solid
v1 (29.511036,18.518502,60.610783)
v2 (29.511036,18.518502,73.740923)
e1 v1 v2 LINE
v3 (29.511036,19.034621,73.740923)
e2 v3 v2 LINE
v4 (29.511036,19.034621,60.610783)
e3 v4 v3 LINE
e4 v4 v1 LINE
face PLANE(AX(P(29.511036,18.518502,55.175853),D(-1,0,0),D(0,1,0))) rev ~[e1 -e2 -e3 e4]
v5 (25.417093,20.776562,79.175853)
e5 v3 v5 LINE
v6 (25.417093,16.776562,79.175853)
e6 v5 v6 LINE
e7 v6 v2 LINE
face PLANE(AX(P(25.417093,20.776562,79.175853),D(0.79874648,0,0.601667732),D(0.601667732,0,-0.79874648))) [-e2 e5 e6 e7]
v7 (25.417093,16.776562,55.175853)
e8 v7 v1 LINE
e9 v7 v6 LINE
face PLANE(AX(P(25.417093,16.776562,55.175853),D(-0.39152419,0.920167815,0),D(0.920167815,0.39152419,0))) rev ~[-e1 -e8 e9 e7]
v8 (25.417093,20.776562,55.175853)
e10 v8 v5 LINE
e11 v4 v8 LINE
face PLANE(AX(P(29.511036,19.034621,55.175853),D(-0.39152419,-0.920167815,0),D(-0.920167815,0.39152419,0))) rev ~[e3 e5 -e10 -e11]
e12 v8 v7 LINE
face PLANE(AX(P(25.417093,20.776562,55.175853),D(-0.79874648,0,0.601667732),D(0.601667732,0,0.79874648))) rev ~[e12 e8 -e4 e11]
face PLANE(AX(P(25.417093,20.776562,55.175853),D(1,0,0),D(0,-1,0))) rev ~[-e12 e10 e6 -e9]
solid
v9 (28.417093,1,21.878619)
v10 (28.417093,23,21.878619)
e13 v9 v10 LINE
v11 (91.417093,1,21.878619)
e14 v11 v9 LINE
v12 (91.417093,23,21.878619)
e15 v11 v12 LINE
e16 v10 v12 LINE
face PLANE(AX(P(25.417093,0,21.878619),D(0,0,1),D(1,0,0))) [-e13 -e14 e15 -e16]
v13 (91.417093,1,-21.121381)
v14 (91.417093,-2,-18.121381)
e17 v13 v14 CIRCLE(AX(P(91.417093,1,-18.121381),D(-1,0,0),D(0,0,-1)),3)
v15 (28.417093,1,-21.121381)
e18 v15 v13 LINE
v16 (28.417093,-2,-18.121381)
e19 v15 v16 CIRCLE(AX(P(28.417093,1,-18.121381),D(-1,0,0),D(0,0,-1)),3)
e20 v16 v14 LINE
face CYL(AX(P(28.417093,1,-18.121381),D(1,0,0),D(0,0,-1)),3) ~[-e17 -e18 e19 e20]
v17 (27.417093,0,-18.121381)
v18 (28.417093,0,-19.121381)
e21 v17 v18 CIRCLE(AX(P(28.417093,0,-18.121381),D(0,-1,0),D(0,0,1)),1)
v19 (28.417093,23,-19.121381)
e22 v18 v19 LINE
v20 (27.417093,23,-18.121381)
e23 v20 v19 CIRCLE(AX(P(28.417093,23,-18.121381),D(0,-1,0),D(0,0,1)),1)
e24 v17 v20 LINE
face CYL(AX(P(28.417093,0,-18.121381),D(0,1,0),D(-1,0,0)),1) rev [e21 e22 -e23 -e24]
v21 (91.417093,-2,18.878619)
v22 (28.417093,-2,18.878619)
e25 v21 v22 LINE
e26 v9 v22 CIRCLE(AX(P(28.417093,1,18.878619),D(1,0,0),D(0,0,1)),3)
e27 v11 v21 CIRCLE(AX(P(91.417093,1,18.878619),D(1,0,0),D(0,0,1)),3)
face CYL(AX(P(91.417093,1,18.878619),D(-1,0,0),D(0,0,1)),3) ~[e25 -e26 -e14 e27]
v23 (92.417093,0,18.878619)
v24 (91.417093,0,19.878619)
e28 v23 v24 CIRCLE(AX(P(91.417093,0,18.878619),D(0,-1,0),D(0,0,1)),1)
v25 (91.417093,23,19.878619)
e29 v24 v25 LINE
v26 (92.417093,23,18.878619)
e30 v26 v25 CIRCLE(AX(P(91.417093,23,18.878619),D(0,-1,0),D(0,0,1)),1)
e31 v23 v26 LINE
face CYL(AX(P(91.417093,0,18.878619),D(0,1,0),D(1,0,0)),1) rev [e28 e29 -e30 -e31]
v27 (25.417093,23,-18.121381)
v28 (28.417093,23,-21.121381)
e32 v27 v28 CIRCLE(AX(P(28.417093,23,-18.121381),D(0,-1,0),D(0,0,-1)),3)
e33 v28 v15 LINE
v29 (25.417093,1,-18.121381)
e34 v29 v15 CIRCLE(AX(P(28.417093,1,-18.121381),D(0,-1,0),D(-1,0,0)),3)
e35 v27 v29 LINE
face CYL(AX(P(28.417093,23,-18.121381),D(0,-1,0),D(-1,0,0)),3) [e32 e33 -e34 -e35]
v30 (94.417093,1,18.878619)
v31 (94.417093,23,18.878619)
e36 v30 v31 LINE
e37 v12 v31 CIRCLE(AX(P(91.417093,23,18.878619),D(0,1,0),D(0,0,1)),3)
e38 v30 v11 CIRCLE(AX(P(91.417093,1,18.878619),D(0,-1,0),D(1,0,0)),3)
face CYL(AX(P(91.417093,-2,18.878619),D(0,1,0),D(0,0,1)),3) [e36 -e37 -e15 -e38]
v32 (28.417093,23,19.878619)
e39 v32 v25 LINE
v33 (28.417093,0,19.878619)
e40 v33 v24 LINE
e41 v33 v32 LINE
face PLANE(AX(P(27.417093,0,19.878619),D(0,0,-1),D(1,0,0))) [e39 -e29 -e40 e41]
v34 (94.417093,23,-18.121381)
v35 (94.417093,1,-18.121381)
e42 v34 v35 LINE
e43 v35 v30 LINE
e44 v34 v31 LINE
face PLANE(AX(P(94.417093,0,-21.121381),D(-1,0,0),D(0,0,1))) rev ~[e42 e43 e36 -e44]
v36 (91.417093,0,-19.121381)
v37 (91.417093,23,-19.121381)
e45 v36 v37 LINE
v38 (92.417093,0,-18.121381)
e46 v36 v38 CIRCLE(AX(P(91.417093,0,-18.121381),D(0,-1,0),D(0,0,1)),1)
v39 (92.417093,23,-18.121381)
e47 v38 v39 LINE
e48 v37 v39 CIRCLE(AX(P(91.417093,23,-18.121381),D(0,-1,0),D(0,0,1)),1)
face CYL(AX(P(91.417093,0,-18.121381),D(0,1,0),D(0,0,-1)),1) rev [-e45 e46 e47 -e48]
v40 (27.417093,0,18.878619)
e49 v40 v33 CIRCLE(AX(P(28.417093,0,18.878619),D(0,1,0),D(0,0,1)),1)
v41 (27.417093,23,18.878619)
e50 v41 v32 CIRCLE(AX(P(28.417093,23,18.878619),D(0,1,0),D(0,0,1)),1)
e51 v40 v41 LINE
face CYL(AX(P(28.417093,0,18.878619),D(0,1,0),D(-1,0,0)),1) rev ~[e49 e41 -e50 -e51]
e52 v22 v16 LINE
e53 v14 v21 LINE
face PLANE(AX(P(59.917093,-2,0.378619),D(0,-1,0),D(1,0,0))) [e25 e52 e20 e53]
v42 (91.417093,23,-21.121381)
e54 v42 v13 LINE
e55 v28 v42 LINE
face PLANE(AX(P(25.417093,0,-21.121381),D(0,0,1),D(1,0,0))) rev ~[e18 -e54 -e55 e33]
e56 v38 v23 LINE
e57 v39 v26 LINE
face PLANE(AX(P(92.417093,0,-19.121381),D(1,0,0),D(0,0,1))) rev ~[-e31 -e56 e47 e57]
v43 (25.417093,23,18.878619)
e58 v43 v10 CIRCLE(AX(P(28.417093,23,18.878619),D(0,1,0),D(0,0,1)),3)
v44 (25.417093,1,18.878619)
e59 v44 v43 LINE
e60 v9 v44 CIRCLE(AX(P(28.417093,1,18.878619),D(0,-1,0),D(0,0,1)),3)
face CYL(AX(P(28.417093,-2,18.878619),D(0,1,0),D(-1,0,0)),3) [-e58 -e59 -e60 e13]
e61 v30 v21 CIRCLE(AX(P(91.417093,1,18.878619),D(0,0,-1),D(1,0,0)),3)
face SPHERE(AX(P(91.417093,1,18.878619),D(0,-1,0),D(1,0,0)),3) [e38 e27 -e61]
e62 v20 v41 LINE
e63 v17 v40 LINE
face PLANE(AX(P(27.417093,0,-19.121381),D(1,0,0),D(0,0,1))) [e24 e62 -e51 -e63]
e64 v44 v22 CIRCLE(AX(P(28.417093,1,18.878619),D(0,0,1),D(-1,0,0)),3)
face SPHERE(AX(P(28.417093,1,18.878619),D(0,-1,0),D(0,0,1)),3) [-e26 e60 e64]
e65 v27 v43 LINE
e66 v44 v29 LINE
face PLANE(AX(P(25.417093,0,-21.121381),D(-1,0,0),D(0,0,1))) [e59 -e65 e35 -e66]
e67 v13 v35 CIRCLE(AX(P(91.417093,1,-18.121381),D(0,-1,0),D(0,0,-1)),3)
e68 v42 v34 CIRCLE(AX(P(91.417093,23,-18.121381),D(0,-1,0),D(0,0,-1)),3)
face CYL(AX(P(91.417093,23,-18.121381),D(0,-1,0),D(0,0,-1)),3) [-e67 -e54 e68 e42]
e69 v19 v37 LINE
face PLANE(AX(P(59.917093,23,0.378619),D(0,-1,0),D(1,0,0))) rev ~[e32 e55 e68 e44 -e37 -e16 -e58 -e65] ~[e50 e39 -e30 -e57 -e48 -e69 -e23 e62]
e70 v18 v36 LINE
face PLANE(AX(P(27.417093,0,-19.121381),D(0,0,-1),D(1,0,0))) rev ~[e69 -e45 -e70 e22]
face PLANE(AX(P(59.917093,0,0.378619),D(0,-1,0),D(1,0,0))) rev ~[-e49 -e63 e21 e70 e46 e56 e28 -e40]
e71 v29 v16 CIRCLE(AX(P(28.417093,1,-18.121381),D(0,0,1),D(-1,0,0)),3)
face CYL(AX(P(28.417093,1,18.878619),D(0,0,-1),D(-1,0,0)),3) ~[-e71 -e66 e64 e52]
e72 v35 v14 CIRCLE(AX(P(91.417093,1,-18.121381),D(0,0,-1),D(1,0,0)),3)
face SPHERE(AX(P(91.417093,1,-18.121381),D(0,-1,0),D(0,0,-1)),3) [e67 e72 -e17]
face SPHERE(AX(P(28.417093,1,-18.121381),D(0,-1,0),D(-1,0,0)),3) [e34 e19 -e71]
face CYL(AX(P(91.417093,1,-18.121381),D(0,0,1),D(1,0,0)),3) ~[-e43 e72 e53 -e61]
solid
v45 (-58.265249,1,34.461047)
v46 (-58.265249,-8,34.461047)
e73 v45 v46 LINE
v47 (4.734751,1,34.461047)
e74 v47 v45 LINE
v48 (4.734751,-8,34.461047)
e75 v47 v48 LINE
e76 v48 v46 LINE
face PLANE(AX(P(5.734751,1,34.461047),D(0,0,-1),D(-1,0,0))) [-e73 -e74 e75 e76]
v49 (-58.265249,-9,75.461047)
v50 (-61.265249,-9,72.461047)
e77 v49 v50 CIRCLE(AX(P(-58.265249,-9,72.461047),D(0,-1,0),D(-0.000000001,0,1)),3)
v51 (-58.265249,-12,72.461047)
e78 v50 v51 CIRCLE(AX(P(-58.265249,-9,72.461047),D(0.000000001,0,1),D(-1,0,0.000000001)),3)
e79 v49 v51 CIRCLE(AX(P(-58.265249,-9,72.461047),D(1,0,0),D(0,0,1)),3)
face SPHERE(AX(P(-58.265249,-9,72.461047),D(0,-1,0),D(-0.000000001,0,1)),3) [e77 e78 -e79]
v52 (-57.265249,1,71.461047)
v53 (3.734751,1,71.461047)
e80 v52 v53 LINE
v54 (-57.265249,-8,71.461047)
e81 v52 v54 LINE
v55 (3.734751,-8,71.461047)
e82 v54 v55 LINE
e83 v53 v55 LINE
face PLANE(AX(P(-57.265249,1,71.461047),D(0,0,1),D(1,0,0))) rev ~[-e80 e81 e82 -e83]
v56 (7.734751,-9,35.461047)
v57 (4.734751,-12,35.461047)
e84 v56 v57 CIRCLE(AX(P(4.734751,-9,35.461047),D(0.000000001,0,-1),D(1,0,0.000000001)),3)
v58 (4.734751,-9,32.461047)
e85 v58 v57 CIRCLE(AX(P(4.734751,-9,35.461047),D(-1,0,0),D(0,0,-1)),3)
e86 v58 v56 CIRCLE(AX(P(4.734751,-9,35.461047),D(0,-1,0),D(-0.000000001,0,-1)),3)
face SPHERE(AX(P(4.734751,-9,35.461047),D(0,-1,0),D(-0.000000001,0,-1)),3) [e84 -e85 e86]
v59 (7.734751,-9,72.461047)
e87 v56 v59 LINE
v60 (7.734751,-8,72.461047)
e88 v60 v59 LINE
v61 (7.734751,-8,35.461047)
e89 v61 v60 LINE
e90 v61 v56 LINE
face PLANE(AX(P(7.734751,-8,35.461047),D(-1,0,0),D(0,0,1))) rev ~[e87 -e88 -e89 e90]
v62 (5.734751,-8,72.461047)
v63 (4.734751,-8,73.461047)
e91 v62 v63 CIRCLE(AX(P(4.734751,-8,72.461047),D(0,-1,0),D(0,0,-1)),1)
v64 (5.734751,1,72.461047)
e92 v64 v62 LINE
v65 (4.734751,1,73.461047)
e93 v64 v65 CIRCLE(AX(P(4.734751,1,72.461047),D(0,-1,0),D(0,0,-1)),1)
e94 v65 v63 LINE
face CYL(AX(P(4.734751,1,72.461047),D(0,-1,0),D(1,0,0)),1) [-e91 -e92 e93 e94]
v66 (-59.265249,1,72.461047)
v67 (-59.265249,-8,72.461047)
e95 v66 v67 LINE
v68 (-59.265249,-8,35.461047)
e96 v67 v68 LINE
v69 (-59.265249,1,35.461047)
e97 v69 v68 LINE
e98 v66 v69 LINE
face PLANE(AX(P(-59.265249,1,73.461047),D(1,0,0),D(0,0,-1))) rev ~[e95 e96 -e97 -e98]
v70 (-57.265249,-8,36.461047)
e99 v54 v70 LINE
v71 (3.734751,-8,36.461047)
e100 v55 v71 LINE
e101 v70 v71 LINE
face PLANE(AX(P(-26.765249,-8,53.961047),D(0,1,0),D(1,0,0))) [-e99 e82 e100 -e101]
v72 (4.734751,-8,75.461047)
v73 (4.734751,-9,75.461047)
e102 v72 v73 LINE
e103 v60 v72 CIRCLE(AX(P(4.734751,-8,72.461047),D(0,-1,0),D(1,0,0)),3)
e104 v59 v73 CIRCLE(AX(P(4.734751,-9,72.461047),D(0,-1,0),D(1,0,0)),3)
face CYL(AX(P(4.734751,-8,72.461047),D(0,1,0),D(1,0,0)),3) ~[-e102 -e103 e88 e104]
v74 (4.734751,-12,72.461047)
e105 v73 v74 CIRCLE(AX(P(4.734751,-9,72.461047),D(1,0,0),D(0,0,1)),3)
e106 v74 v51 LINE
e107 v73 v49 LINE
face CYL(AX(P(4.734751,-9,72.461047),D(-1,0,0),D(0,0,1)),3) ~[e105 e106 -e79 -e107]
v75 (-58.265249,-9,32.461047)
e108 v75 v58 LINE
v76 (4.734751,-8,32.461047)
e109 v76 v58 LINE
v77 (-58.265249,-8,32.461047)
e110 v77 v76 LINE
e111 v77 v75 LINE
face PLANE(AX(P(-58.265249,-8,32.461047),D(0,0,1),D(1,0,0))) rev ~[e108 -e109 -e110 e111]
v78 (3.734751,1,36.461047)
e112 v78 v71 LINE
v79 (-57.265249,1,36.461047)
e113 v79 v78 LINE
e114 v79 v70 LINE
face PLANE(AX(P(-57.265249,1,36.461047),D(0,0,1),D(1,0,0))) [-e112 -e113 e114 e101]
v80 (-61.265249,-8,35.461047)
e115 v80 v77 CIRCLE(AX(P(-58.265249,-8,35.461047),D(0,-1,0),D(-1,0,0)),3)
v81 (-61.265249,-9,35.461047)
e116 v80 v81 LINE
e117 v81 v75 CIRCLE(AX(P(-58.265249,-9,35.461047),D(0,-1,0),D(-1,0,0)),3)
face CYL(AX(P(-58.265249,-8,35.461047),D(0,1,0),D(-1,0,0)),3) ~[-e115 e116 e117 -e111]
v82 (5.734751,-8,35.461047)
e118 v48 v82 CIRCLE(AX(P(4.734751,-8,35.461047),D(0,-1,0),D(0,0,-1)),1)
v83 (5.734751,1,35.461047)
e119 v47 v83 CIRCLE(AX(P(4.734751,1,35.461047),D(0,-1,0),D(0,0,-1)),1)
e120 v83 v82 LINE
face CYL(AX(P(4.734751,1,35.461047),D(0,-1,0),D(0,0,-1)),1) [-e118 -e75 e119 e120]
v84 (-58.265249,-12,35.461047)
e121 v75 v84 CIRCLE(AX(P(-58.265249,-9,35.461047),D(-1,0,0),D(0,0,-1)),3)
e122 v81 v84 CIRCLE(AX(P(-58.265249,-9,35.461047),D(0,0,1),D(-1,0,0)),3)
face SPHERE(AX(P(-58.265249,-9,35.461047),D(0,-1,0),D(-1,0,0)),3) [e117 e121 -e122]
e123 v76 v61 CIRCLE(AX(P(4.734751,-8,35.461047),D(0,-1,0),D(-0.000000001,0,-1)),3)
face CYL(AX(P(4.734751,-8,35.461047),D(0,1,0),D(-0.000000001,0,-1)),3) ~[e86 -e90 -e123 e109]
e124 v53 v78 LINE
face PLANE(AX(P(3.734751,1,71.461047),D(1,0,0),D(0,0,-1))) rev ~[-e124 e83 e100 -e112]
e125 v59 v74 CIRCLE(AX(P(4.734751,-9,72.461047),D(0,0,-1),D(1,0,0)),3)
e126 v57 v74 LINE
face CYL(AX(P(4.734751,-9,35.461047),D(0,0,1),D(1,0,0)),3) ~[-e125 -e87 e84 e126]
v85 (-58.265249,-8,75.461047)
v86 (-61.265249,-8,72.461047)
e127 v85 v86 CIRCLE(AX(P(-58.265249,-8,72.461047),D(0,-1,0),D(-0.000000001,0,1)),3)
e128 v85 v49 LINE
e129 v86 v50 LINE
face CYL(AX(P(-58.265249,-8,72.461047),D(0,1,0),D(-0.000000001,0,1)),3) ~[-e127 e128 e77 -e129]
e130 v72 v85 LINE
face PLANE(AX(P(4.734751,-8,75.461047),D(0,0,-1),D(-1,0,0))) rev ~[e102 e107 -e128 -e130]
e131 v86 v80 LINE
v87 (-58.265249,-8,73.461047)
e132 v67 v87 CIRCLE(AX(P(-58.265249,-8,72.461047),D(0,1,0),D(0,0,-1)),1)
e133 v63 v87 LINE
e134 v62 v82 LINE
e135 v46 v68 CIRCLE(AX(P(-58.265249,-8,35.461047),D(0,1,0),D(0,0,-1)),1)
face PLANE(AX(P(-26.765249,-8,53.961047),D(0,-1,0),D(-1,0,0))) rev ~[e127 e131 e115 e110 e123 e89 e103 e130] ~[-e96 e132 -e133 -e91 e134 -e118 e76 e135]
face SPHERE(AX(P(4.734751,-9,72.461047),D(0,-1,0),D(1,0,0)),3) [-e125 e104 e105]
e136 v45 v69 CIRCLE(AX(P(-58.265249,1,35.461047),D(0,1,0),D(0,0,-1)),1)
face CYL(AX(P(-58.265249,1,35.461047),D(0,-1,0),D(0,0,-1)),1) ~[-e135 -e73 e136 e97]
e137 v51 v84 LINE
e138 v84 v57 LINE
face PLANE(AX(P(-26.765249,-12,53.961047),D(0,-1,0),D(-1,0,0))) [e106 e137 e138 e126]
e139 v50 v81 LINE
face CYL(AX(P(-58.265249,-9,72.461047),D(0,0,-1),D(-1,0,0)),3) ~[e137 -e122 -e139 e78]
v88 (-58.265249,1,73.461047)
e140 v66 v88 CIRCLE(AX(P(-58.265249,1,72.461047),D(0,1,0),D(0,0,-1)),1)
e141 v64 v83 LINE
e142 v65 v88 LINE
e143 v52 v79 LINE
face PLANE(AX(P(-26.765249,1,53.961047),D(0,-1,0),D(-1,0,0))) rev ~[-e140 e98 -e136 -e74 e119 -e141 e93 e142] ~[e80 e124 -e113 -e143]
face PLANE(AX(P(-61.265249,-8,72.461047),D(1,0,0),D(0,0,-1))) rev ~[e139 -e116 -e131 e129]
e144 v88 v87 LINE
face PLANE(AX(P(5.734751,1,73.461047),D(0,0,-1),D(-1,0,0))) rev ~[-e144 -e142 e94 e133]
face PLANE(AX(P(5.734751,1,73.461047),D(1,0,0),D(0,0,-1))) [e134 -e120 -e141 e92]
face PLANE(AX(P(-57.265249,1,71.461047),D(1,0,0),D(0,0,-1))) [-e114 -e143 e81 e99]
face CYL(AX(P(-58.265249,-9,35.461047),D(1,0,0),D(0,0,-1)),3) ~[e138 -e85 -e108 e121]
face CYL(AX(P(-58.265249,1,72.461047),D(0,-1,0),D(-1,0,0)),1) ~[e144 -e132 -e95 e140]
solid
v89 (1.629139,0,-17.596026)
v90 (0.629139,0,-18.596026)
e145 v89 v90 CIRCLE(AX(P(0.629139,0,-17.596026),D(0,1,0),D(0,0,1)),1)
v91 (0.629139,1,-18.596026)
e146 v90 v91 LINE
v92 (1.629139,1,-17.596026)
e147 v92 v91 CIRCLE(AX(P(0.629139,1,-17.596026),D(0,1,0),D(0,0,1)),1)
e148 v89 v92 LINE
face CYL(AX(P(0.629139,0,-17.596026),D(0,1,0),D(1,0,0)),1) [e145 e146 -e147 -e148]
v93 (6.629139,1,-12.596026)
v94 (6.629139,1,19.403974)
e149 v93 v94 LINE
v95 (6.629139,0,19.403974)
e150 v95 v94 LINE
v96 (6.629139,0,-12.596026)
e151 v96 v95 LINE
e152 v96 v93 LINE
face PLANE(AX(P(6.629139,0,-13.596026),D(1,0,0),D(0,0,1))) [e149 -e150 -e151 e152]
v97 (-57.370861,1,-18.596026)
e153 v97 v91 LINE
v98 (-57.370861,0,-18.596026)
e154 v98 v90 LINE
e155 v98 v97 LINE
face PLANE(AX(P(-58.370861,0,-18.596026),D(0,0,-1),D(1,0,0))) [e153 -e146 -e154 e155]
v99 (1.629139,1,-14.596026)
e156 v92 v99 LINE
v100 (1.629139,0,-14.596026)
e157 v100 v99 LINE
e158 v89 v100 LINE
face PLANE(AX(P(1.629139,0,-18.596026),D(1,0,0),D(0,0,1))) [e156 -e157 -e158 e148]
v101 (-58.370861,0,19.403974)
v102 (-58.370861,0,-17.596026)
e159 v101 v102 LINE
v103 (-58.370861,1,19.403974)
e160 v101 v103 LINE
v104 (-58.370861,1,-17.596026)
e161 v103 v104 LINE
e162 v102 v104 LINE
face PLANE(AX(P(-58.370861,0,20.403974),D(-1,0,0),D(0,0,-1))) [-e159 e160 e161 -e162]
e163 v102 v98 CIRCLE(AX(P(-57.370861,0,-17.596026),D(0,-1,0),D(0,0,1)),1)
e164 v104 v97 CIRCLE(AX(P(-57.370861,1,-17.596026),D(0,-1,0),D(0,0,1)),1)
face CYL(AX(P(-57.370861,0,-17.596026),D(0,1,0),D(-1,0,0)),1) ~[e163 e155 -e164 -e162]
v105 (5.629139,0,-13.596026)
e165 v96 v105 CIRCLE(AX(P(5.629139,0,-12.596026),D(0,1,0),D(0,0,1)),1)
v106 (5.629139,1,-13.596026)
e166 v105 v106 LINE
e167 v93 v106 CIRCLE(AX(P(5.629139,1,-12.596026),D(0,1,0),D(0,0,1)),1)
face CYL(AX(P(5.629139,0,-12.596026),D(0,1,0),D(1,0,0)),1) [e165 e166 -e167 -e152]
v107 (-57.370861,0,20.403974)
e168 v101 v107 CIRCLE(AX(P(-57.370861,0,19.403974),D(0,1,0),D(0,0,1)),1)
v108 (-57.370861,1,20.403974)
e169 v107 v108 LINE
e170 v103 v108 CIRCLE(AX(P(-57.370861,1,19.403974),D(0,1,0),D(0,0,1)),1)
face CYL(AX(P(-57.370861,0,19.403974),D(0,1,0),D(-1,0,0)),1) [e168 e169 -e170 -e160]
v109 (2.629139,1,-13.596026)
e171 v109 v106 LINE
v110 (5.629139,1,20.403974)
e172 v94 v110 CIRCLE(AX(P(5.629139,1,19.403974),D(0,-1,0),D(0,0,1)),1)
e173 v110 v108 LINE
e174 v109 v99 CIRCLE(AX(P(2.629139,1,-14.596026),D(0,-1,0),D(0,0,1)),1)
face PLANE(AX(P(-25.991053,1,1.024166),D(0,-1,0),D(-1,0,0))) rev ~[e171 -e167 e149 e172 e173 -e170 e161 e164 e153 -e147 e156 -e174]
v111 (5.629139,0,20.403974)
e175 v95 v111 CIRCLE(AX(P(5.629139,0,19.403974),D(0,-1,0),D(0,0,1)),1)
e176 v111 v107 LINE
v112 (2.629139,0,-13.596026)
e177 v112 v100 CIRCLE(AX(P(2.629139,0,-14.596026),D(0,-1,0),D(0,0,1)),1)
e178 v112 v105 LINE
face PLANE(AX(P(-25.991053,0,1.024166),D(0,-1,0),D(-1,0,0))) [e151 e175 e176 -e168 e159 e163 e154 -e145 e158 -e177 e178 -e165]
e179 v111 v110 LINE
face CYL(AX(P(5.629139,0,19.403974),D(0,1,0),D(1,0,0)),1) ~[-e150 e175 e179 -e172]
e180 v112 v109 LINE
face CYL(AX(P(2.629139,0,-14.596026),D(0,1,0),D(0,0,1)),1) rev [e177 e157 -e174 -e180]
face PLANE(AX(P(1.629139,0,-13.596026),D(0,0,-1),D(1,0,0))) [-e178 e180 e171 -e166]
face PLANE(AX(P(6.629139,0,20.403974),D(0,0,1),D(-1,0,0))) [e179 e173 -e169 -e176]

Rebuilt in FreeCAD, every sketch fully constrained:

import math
import FreeCAD as App
import Part
import Sketcher
Q = App.Units.Quantity


def edges_at(feature, points):
    """Names of the edges that pass closest to the given points."""
    edges = feature.Shape.Edges
    near = lambda p: min(range(len(edges)), key=lambda i: edges[i].distToShape(Part.Vertex(*p))[0])
    return sorted({f"Edge{near(p) + 1}" for p in points})

doc = App.newDocument("Part")
params = doc.addObject("Spreadsheet::Sheet", "Params")
for row, (alias, value) in enumerate([
    ("sketch1_width", "65 mm"),
    ("sketch1_width2", "5 mm"),
    ("sketch1_height", "39 mm"),
    ("pad1_length", "1 mm"),
    ("fillet_radius", "1 mm"),
    ("fillet2_radius", "1 mm"),
    ("fillet3_radius", "1 mm"),
    ("fillet4_radius", "1 mm"),
    ("sketch2_width", "69 mm"),
    ("sketch2_width2", "65 mm"),
    ("sketch2_height", "43 mm"),
    ("sketch2_height2", "39 mm"),
    ("pad2_length", "23 mm"),
    ("sketch3_width", "69 mm"),
    ("sketch3_height", "43 mm"),
    ("pad3_length", "2 mm"),
    ("fillet5_radius", "1 mm"),
    ("fillet6_radius", "1 mm"),
    ("fillet7_radius", "1 mm"),
    ("fillet8_radius", "1 mm"),
    ("fillet9_radius", "3 mm"),
    ("fillet10_radius", "3 mm"),
    ("fillet11_radius", "3 mm"),
    ("sketch4_width", "65 mm"),
    ("sketch4_height", "39 mm"),
    ("pad4_length", "9 mm"),
    ("fillet12_radius", "1 mm"),
    ("fillet13_radius", "1 mm"),
    ("sketch5_radius", "3 mm"),
    ("sketch5_width", "63 mm"),
    ("sketch5_height", "37 mm"),
    ("pad5_length", "4 mm"),
    ("sketch6_width", "61 mm"),
    ("sketch6_height", "35 mm"),
    ("pad6_length", "9 mm"),
    ("fillet14_radius", "3 mm"),
    ("sketch7_height", "4 mm"),
    ("pad7_length", "24 mm"),
    ("pad8_length", "4 mm"),
    ("pad9_length", "4 mm"),
], start=1):
    params.set(f"A{row}", alias)
    params.set(f"B{row}", "=" + value)
    params.setAlias(f"B{row}", alias)

body = doc.addObject("PartDesign::Body", "Body")

sketch1 = doc.addObject("Sketcher::SketchObject", "Sketch")
body.addObject(sketch1)
sketch1.AttachmentSupport = (doc.XZ_Plane, [""])
sketch1.MapMode = "FlatFace"
sketch1.addGeometry([
    Part.LineSegment(App.Vector(-58, -19, 0), App.Vector(-58, 20, 0)),
    Part.LineSegment(App.Vector(-58, 20, 0), App.Vector(7, 20, 0)),
    Part.LineSegment(App.Vector(7, 20, 0), App.Vector(7, -14, 0)),
    Part.LineSegment(App.Vector(7, -14, 0), App.Vector(2, -14, 0)),
    Part.LineSegment(App.Vector(2, -14, 0), App.Vector(2, -19, 0)),
    Part.LineSegment(App.Vector(2, -19, 0), App.Vector(-58, -19, 0)),
], False)
sketch1.addConstraint([
    Sketcher.Constraint("Coincident", 0, 2, 1, 1),
    Sketcher.Constraint("Coincident", 1, 2, 2, 1),
    Sketcher.Constraint("Coincident", 2, 2, 3, 1),
    Sketcher.Constraint("Coincident", 3, 2, 4, 1),
    Sketcher.Constraint("Coincident", 4, 2, 5, 1),
    Sketcher.Constraint("Coincident", 5, 2, 0, 1),
    Sketcher.Constraint("Vertical", 0),
    Sketcher.Constraint("Horizontal", 1),
    Sketcher.Constraint("Vertical", 2),
    Sketcher.Constraint("Horizontal", 3),
    Sketcher.Constraint("Vertical", 4),
    Sketcher.Constraint("Horizontal", 5),
    Sketcher.Constraint("Equal", 3, 4),
    Sketcher.Constraint("DistanceX", 1, 1, 1, 2, Q("65 mm")),
    Sketcher.Constraint("DistanceX", 3, 2, 3, 1, Q("5 mm")),
    Sketcher.Constraint("DistanceY", 0, 1, 0, 2, Q("39 mm")),
    Sketcher.Constraint("DistanceX", 0, 2, -1, 1, Q("58.370861 mm")),
    Sketcher.Constraint("DistanceY", -1, 1, 0, 2, Q("20.403974 mm")),
])
sketch1.setExpression("Constraints[13]", "Params.sketch1_width")
sketch1.setExpression("Constraints[14]", "Params.sketch1_width2")
sketch1.setExpression("Constraints[15]", "Params.sketch1_height")
pad1 = doc.addObject("PartDesign::Pad", "Pad")
body.addObject(pad1)
pad1.Profile = sketch1
pad1.setExpression("Length", "Params.pad1_length")
pad1.Reversed = True
doc.recompute()

fillet = doc.addObject("PartDesign::Fillet", "Fillet")
body.addObject(fillet)
fillet.Base = (pad1, edges_at(pad1, [(6.629, 0.5, 20.404)]))
fillet.setExpression("Radius", "Params.fillet_radius")
doc.recompute()

fillet2 = doc.addObject("PartDesign::Fillet", "Fillet001")
body.addObject(fillet2)
fillet2.Base = (fillet, edges_at(fillet, [(1.629, 0.5, -18.596), (1.629, 0.5, -13.596), (6.629, 0.5, -13.596)]))
fillet2.setExpression("Radius", "Params.fillet2_radius")
doc.recompute()

fillet3 = doc.addObject("PartDesign::Fillet", "Fillet002")
body.addObject(fillet3)
fillet3.Base = (fillet2, edges_at(fillet2, [(-58.371, 0.5, -18.596)]))
fillet3.setExpression("Radius", "Params.fillet3_radius")
doc.recompute()

fillet4 = doc.addObject("PartDesign::Fillet", "Fillet003")
body.addObject(fillet4)
fillet4.Base = (fillet3, edges_at(fillet3, [(-58.371, 0.5, 20.404)]))
fillet4.setExpression("Radius", "Params.fillet4_radius")
body2 = doc.addObject("PartDesign::Body", "Body001")

sketch2 = doc.addObject("Sketcher::SketchObject", "Sketch001")
body2.addObject(sketch2)
sketch2.AttachmentSupport = (doc.getObject("XZ_Plane001"), [""])
sketch2.MapMode = "FlatFace"
sketch2.addGeometry([
    Part.LineSegment(App.Vector(25, 22, 0), App.Vector(25, -21, 0)),
    Part.LineSegment(App.Vector(25, -21, 0), App.Vector(94, -21, 0)),
    Part.LineSegment(App.Vector(94, -21, 0), App.Vector(94, 22, 0)),
    Part.LineSegment(App.Vector(94, 22, 0), App.Vector(25, 22, 0)),
    Part.LineSegment(App.Vector(92, -19, 0), App.Vector(27, -19, 0)),
    Part.LineSegment(App.Vector(27, -19, 0), App.Vector(27, 20, 0)),
    Part.LineSegment(App.Vector(27, 20, 0), App.Vector(92, 20, 0)),
    Part.LineSegment(App.Vector(92, 20, 0), App.Vector(92, -19, 0)),
], False)
sketch2.addConstraint([
    Sketcher.Constraint("Coincident", 0, 2, 1, 1),
    Sketcher.Constraint("Coincident", 1, 2, 2, 1),
    Sketcher.Constraint("Coincident", 2, 2, 3, 1),
    Sketcher.Constraint("Coincident", 3, 2, 0, 1),
    Sketcher.Constraint("Coincident", 4, 2, 5, 1),
    Sketcher.Constraint("Coincident", 5, 2, 6, 1),
    Sketcher.Constraint("Coincident", 6, 2, 7, 1),
    Sketcher.Constraint("Coincident", 7, 2, 4, 1),
    Sketcher.Constraint("Vertical", 0),
    Sketcher.Constraint("Horizontal", 1),
    Sketcher.Constraint("Vertical", 2),
    Sketcher.Constraint("Horizontal", 3),
    Sketcher.Constraint("Horizontal", 4),
    Sketcher.Constraint("Vertical", 5),
    Sketcher.Constraint("Horizontal", 6),
    Sketcher.Constraint("Vertical", 7),
    Sketcher.Constraint("DistanceX", 1, 1, 1, 2, Q("69 mm")),
    Sketcher.Constraint("DistanceX", 4, 2, 4, 1, Q("65 mm")),
    Sketcher.Constraint("DistanceY", 0, 2, 0, 1, Q("43 mm")),
    Sketcher.Constraint("DistanceY", 5, 1, 5, 2, Q("39 mm")),
    Sketcher.Constraint("DistanceX", 0, 2, 4, 2, Q("2 mm")),
    Sketcher.Constraint("DistanceY", 0, 2, 4, 2, Q("2 mm")),
    Sketcher.Constraint("DistanceY", 0, 2, -1, 1, Q("21.121381 mm")),
    Sketcher.Constraint("DistanceX", -1, 1, 0, 2, Q("25.417093 mm")),
])
sketch2.setExpression("Constraints[16]", "Params.sketch2_width")
sketch2.setExpression("Constraints[17]", "Params.sketch2_width2")
sketch2.setExpression("Constraints[18]", "Params.sketch2_height")
sketch2.setExpression("Constraints[19]", "Params.sketch2_height2")
pad2 = doc.addObject("PartDesign::Pad", "Pad001")
body2.addObject(pad2)
pad2.Profile = sketch2
pad2.setExpression("Length", "Params.pad2_length")
pad2.Reversed = True

sketch3 = doc.addObject("Sketcher::SketchObject", "Sketch002")
body2.addObject(sketch3)
sketch3.AttachmentSupport = (doc.getObject("XZ_Plane001"), [""])
sketch3.MapMode = "FlatFace"
sketch3.addGeometry([
    Part.LineSegment(App.Vector(25, 22, 0), App.Vector(25, -21, 0)),
    Part.LineSegment(App.Vector(25, -21, 0), App.Vector(94, -21, 0)),
    Part.LineSegment(App.Vector(94, -21, 0), App.Vector(94, 22, 0)),
    Part.LineSegment(App.Vector(94, 22, 0), App.Vector(25, 22, 0)),
], False)
sketch3.addConstraint([
    Sketcher.Constraint("Coincident", 0, 2, 1, 1),
    Sketcher.Constraint("Coincident", 1, 2, 2, 1),
    Sketcher.Constraint("Coincident", 2, 2, 3, 1),
    Sketcher.Constraint("Coincident", 3, 2, 0, 1),
    Sketcher.Constraint("Vertical", 0),
    Sketcher.Constraint("Horizontal", 1),
    Sketcher.Constraint("Vertical", 2),
    Sketcher.Constraint("Horizontal", 3),
    Sketcher.Constraint("DistanceX", 1, 1, 1, 2, Q("69 mm")),
    Sketcher.Constraint("DistanceY", 0, 2, 0, 1, Q("43 mm")),
    Sketcher.Constraint("DistanceY", 0, 2, -1, 1, Q("21.121381 mm")),
    Sketcher.Constraint("DistanceX", -1, 1, 0, 2, Q("25.417093 mm")),
])
sketch3.setExpression("Constraints[8]", "Params.sketch3_width")
sketch3.setExpression("Constraints[9]", "Params.sketch3_height")
pad3 = doc.addObject("PartDesign::Pad", "Pad002")
body2.addObject(pad3)
pad3.Profile = sketch3
pad3.setExpression("Length", "Params.pad3_length")
doc.recompute()

fillet5 = doc.addObject("PartDesign::Fillet", "Fillet004")
body2.addObject(fillet5)
fillet5.Base = (pad3, edges_at(pad3, [(27.417, 11.5, 19.879)]))
fillet5.setExpression("Radius", "Params.fillet5_radius")
doc.recompute()

fillet6 = doc.addObject("PartDesign::Fillet", "Fillet005")
body2.addObject(fillet6)
fillet6.Base = (fillet5, edges_at(fillet5, [(27.417, 11.5, -19.121)]))
fillet6.setExpression("Radius", "Params.fillet6_radius")
doc.recompute()

fillet7 = doc.addObject("PartDesign::Fillet", "Fillet006")
body2.addObject(fillet7)
fillet7.Base = (fillet6, edges_at(fillet6, [(92.417, 11.5, -19.121)]))
fillet7.setExpression("Radius", "Params.fillet7_radius")
doc.recompute()

fillet8 = doc.addObject("PartDesign::Fillet", "Fillet007")
body2.addObject(fillet8)
fillet8.Base = (fillet7, edges_at(fillet7, [(92.417, 11.5, 19.879)]))
fillet8.setExpression("Radius", "Params.fillet8_radius")
doc.recompute()

fillet9 = doc.addObject("PartDesign::Fillet", "Fillet008")
body2.addObject(fillet9)
fillet9.Base = (fillet8, edges_at(fillet8, [(94.417, 10.5, -21.121), (25.417, 10.5, -21.121), (94.417, 10.5, 21.879)]))
fillet9.setExpression("Radius", "Params.fillet9_radius")
doc.recompute()

fillet10 = doc.addObject("PartDesign::Fillet", "Fillet009")
body2.addObject(fillet10)
fillet10.Base = (fillet9, edges_at(fillet9, [(25.417, 10.5, 21.879)]))
fillet10.setExpression("Radius", "Params.fillet10_radius")
doc.recompute()

fillet11 = doc.addObject("PartDesign::Fillet", "Fillet010")
body2.addObject(fillet11)
fillet11.Base = (fillet10, edges_at(fillet10, [
    (94.417, -2, 0.379),
    (59.917, -2, -21.121),
    (59.917, -2, 21.879),
    (93.538, -2, -20.243),
    (26.296, -2, -20.243),
    (93.538, -2, 21),
    (25.417, -2, 0.379),
    (26.296, -2, 21),
]))
fillet11.setExpression("Radius", "Params.fillet11_radius")
body3 = doc.addObject("PartDesign::Body", "Body002")

sketch4 = doc.addObject("Sketcher::SketchObject", "Sketch003")
body3.addObject(sketch4)
sketch4.AttachmentSupport = (doc.getObject("XZ_Plane002"), [""])
sketch4.MapMode = "FlatFace"
sketch4.AttachmentOffset = App.Placement(App.Vector(0, 0, -1), App.Rotation())
sketch4.addGeometry([
    Part.LineSegment(App.Vector(-59, 34, 0), App.Vector(-59, 73, 0)),
    Part.LineSegment(App.Vector(-59, 73, 0), App.Vector(6, 73, 0)),
    Part.LineSegment(App.Vector(6, 73, 0), App.Vector(6, 34, 0)),
    Part.LineSegment(App.Vector(6, 34, 0), App.Vector(-59, 34, 0)),
], False)
sketch4.addConstraint([
    Sketcher.Constraint("Coincident", 0, 2, 1, 1),
    Sketcher.Constraint("Coincident", 1, 2, 2, 1),
    Sketcher.Constraint("Coincident", 2, 2, 3, 1),
    Sketcher.Constraint("Coincident", 3, 2, 0, 1),
    Sketcher.Constraint("Vertical", 0),
    Sketcher.Constraint("Horizontal", 1),
    Sketcher.Constraint("Vertical", 2),
    Sketcher.Constraint("Horizontal", 3),
    Sketcher.Constraint("DistanceX", 1, 1, 1, 2, Q("65 mm")),
    Sketcher.Constraint("DistanceY", 0, 1, 0, 2, Q("39 mm")),
    Sketcher.Constraint("DistanceX", 0, 2, -1, 1, Q("59.265249 mm")),
    Sketcher.Constraint("DistanceY", -1, 1, 0, 2, Q("73.461047 mm")),
])
sketch4.setExpression("Constraints[8]", "Params.sketch4_width")
sketch4.setExpression("Constraints[9]", "Params.sketch4_height")
pad4 = doc.addObject("PartDesign::Pad", "Pad003")
body3.addObject(pad4)
pad4.Profile = sketch4
pad4.setExpression("Length", "Params.pad4_length")
doc.recompute()

fillet12 = doc.addObject("PartDesign::Fillet", "Fillet011")
body3.addObject(fillet12)
fillet12.Base = (pad4, edges_at(pad4, [(5.735, -3.5, 34.461), (5.735, -3.5, 73.461)]))
fillet12.setExpression("Radius", "Params.fillet12_radius")
doc.recompute()

fillet13 = doc.addObject("PartDesign::Fillet", "Fillet012")
body3.addObject(fillet13)
fillet13.Base = (fillet12, edges_at(fillet12, [(-59.265, -3.5, 73.461), (-59.265, -3.5, 34.461)]))
fillet13.setExpression("Radius", "Params.fillet13_radius")

sketch5 = doc.addObject("Sketcher::SketchObject", "Sketch004")
body3.addObject(sketch5)
sketch5.AttachmentSupport = (doc.getObject("XZ_Plane002"), [""])
sketch5.MapMode = "FlatFace"
sketch5.AttachmentOffset = App.Placement(App.Vector(0, 0, 8), App.Rotation())
sketch5.addGeometry([
    Part.LineSegment(App.Vector(-58.3, 32.5, 0), App.Vector(4.7, 32.5, 0)),
    Part.ArcOfCircle(Part.Circle(App.Vector(4.7, 35.5, 0), App.Vector(0, 0, 1), 3), math.radians(-90), math.radians(0)),
    Part.LineSegment(App.Vector(7.7, 35.5, 0), App.Vector(7.7, 72.5, 0)),
    Part.ArcOfCircle(Part.Circle(App.Vector(4.7, 72.5, 0), App.Vector(0, 0, 1), 3), math.radians(0), math.radians(90)),
    Part.LineSegment(App.Vector(4.7, 75.5, 0), App.Vector(-58.3, 75.5, 0)),
    Part.ArcOfCircle(Part.Circle(App.Vector(-58.3, 72.5, 0), App.Vector(0, 0, 1), 3), math.radians(90), math.radians(180)),
    Part.LineSegment(App.Vector(-61.3, 72.5, 0), App.Vector(-61.3, 35.5, 0)),
    Part.ArcOfCircle(Part.Circle(App.Vector(-58.3, 35.5, 0), App.Vector(0, 0, 1), 3), math.radians(180), math.radians(270)),
], False)
sketch5.addConstraint([
    Sketcher.Constraint("Tangent", 0, 2, 1, 1),
    Sketcher.Constraint("Tangent", 1, 2, 2, 1),
    Sketcher.Constraint("Tangent", 2, 2, 3, 1),
    Sketcher.Constraint("Tangent", 3, 2, 4, 1),
    Sketcher.Constraint("Tangent", 4, 2, 5, 1),
    Sketcher.Constraint("Tangent", 5, 2, 6, 1),
    Sketcher.Constraint("Tangent", 6, 2, 7, 1),
    Sketcher.Constraint("Tangent", 7, 2, 0, 1),
    Sketcher.Constraint("Horizontal", 0),
    Sketcher.Constraint("Vertical", 2),
    Sketcher.Constraint("Horizontal", 4),
    Sketcher.Constraint("Vertical", 6),
    Sketcher.Constraint("Equal", 1, 3),
    Sketcher.Constraint("Equal", 3, 5),
    Sketcher.Constraint("Equal", 5, 7),
    Sketcher.Constraint("Radius", 1, Q("3 mm")),
    Sketcher.Constraint("DistanceX", 0, 1, 0, 2, Q("63 mm")),
    Sketcher.Constraint("DistanceY", 2, 1, 2, 2, Q("37 mm")),
    Sketcher.Constraint("DistanceX", -1, 1, 1, 3, Q("4.734751 mm")),
    Sketcher.Constraint("DistanceY", -1, 1, 1, 3, Q("35.461047 mm")),
])
sketch5.setExpression("Constraints[15]", "Params.sketch5_radius")
sketch5.setExpression("Constraints[16]", "Params.sketch5_width")
sketch5.setExpression("Constraints[17]", "Params.sketch5_height")
pad5 = doc.addObject("PartDesign::Pad", "Pad004")
body3.addObject(pad5)
pad5.Profile = sketch5
pad5.setExpression("Length", "Params.pad5_length")
body4 = doc.addObject("PartDesign::Body", "Body003")

sketch6 = doc.addObject("Sketcher::SketchObject", "Sketch005")
body4.addObject(sketch6)
sketch6.AttachmentSupport = (doc.getObject("XZ_Plane003"), [""])
sketch6.MapMode = "FlatFace"
sketch6.AttachmentOffset = App.Placement(App.Vector(0, 0, -1), App.Rotation())
sketch6.addGeometry([
    Part.LineSegment(App.Vector(-57, 36, 0), App.Vector(-57, 71, 0)),
    Part.LineSegment(App.Vector(-57, 71, 0), App.Vector(4, 71, 0)),
    Part.LineSegment(App.Vector(4, 71, 0), App.Vector(4, 36, 0)),
    Part.LineSegment(App.Vector(4, 36, 0), App.Vector(-57, 36, 0)),
], False)
sketch6.addConstraint([
    Sketcher.Constraint("Coincident", 0, 2, 1, 1),
    Sketcher.Constraint("Coincident", 1, 2, 2, 1),
    Sketcher.Constraint("Coincident", 2, 2, 3, 1),
    Sketcher.Constraint("Coincident", 3, 2, 0, 1),
    Sketcher.Constraint("Vertical", 0),
    Sketcher.Constraint("Horizontal", 1),
    Sketcher.Constraint("Vertical", 2),
    Sketcher.Constraint("Horizontal", 3),
    Sketcher.Constraint("DistanceX", 1, 1, 1, 2, Q("61 mm")),
    Sketcher.Constraint("DistanceY", 0, 1, 0, 2, Q("35 mm")),
    Sketcher.Constraint("DistanceX", 0, 2, -1, 1, Q("57.265249 mm")),
    Sketcher.Constraint("DistanceY", -1, 1, 0, 2, Q("71.461047 mm")),
])
sketch6.setExpression("Constraints[8]", "Params.sketch6_width")
sketch6.setExpression("Constraints[9]", "Params.sketch6_height")
pad6 = doc.addObject("PartDesign::Pad", "Pad005")
body4.addObject(pad6)
pad6.Profile = sketch6
pad6.setExpression("Length", "Params.pad6_length")
doc.recompute()

boolean = doc.addObject("PartDesign::Boolean", "Boolean")
body3.addObject(boolean)
boolean.Type = "Cut"
boolean.addObjects([body4])
doc.recompute()

fillet14 = doc.addObject("PartDesign::Fillet", "Fillet013")
body3.addObject(fillet14)
fillet14.Base = (boolean, edges_at(boolean, [
    (-60.387, -12, 33.34),
    (-26.765, -12, 32.461),
    (6.856, -12, 33.34),
    (7.735, -12, 53.961),
    (6.856, -12, 74.582),
    (-26.765, -12, 75.461),
    (-60.387, -12, 74.582),
    (-61.265, -12, 53.961),
]))
fillet14.setExpression("Radius", "Params.fillet14_radius")
body5 = doc.addObject("PartDesign::Body", "Body004")

sketch7 = doc.addObject("Sketcher::SketchObject", "Sketch006")
body5.addObject(sketch7)
sketch7.AttachmentSupport = (doc.getObject("XY_Plane004"), [""])
sketch7.MapMode = "FlatFace"
sketch7.AttachmentOffset = App.Placement(App.Vector(0, 0, 55.175853), App.Rotation())
sketch7.addGeometry([
    Part.LineSegment(App.Vector(25.4, 20.8, 0), App.Vector(25.4, 16.8, 0)),
    Part.LineSegment(App.Vector(25.4, 16.8, 0), App.Vector(29.5, 18.5, 0)),
    Part.LineSegment(App.Vector(29.5, 18.5, 0), App.Vector(29.5, 19, 0)),
    Part.LineSegment(App.Vector(29.5, 19, 0), App.Vector(25.4, 20.8, 0)),
], False)
sketch7.addConstraint([
    Sketcher.Constraint("Coincident", 0, 2, 1, 1),
    Sketcher.Constraint("Coincident", 1, 2, 2, 1),
    Sketcher.Constraint("Coincident", 2, 2, 3, 1),
    Sketcher.Constraint("Coincident", 3, 2, 0, 1),
    Sketcher.Constraint("Vertical", 0),
    Sketcher.Constraint("Vertical", 2),
    Sketcher.Constraint("Equal", 1, 3),
    Sketcher.Constraint("DistanceY", 0, 2, 0, 1, Q("4 mm")),
    Sketcher.Constraint("DistanceY", 2, 1, 2, 2, Q("0.516119 mm")),
    Sketcher.Constraint("DistanceY", -1, 1, 0, 2, Q("16.776562 mm")),
    Sketcher.Constraint("Distance", 1, Q("4.449126 mm")),
    Sketcher.Constraint("DistanceX", -1, 1, 0, 2, Q("25.417093 mm")),
])
sketch7.setExpression("Constraints[7]", "Params.sketch7_height")
pad7 = doc.addObject("PartDesign::Pad", "Pad006")
body5.addObject(pad7)
pad7.Profile = sketch7
pad7.setExpression("Length", "Params.pad7_length")
body6 = doc.addObject("PartDesign::Body", "Body005")

sketch8 = doc.addObject("Sketcher::SketchObject", "Sketch007")
body6.addObject(sketch8)
sketch8.AttachmentSupport = (doc.getObject("XZ_Plane005"), [""])
sketch8.MapMode = "FlatFace"
sketch8.AttachmentOffset = App.Placement(App.Vector(0, 0, -20.776562), App.Rotation())
sketch8.addGeometry([
    Part.LineSegment(App.Vector(29.5, 73.7, 0), App.Vector(25.4, 79.2, 0)),
    Part.LineSegment(App.Vector(25.4, 79.2, 0), App.Vector(29.5, 79.2, 0)),
    Part.LineSegment(App.Vector(29.5, 79.2, 0), App.Vector(29.5, 73.7, 0)),
], False)
sketch8.addConstraint([
    Sketcher.Constraint("Coincident", 0, 2, 1, 1),
    Sketcher.Constraint("Coincident", 1, 2, 2, 1),
    Sketcher.Constraint("Coincident", 2, 2, 0, 1),
    Sketcher.Constraint("Horizontal", 1),
    Sketcher.Constraint("Vertical", 2),
    Sketcher.Constraint("DistanceY", 2, 2, 2, 1, Q("5.43493 mm")),
    Sketcher.Constraint("DistanceX", 1, 1, 1, 2, Q("4.093943 mm")),
    Sketcher.Constraint("DistanceX", -1, 1, 0, 2, Q("25.417093 mm")),
    Sketcher.Constraint("DistanceY", -1, 1, 0, 2, Q("79.175853 mm")),
])
pad8 = doc.addObject("PartDesign::Pad", "Pad007")
body6.addObject(pad8)
pad8.Profile = sketch8
pad8.setExpression("Length", "Params.pad8_length")
body7 = doc.addObject("PartDesign::Body", "Body006")

sketch9 = doc.addObject("Sketcher::SketchObject", "Sketch008")
body7.addObject(sketch9)
sketch9.AttachmentSupport = (doc.getObject("XZ_Plane006"), [""])
sketch9.MapMode = "FlatFace"
sketch9.AttachmentOffset = App.Placement(App.Vector(0, 0, -20.776562), App.Rotation())
sketch9.addGeometry([
    Part.LineSegment(App.Vector(29.5, 60.6, 0), App.Vector(29.5, 55.2, 0)),
    Part.LineSegment(App.Vector(29.5, 55.2, 0), App.Vector(25.4, 55.2, 0)),
    Part.LineSegment(App.Vector(25.4, 55.2, 0), App.Vector(29.5, 60.6, 0)),
], False)
sketch9.addConstraint([
    Sketcher.Constraint("Coincident", 0, 2, 1, 1),
    Sketcher.Constraint("Coincident", 1, 2, 2, 1),
    Sketcher.Constraint("Coincident", 2, 2, 0, 1),
    Sketcher.Constraint("Vertical", 0),
    Sketcher.Constraint("Horizontal", 1),
    Sketcher.Constraint("DistanceY", 0, 2, 0, 1, Q("5.43493 mm")),
    Sketcher.Constraint("DistanceX", 1, 2, 1, 1, Q("4.093943 mm")),
    Sketcher.Constraint("DistanceX", -1, 1, 0, 2, Q("29.511036 mm")),
    Sketcher.Constraint("DistanceY", -1, 1, 0, 2, Q("55.175853 mm")),
])
pad9 = doc.addObject("PartDesign::Pad", "Pad008")
body7.addObject(pad9)
pad9.Profile = sketch9
pad9.setExpression("Length", "Params.pad9_length")
doc.recompute()

boolean2 = doc.addObject("PartDesign::Boolean", "Boolean001")
body5.addObject(boolean2)
boolean2.Type = "Cut"
boolean2.addObjects([body6])
doc.recompute()

boolean3 = doc.addObject("PartDesign::Boolean", "Boolean002")
body5.addObject(boolean3)
boolean3.Type = "Cut"
boolean3.addObjects([body7])

doc.recompute()
